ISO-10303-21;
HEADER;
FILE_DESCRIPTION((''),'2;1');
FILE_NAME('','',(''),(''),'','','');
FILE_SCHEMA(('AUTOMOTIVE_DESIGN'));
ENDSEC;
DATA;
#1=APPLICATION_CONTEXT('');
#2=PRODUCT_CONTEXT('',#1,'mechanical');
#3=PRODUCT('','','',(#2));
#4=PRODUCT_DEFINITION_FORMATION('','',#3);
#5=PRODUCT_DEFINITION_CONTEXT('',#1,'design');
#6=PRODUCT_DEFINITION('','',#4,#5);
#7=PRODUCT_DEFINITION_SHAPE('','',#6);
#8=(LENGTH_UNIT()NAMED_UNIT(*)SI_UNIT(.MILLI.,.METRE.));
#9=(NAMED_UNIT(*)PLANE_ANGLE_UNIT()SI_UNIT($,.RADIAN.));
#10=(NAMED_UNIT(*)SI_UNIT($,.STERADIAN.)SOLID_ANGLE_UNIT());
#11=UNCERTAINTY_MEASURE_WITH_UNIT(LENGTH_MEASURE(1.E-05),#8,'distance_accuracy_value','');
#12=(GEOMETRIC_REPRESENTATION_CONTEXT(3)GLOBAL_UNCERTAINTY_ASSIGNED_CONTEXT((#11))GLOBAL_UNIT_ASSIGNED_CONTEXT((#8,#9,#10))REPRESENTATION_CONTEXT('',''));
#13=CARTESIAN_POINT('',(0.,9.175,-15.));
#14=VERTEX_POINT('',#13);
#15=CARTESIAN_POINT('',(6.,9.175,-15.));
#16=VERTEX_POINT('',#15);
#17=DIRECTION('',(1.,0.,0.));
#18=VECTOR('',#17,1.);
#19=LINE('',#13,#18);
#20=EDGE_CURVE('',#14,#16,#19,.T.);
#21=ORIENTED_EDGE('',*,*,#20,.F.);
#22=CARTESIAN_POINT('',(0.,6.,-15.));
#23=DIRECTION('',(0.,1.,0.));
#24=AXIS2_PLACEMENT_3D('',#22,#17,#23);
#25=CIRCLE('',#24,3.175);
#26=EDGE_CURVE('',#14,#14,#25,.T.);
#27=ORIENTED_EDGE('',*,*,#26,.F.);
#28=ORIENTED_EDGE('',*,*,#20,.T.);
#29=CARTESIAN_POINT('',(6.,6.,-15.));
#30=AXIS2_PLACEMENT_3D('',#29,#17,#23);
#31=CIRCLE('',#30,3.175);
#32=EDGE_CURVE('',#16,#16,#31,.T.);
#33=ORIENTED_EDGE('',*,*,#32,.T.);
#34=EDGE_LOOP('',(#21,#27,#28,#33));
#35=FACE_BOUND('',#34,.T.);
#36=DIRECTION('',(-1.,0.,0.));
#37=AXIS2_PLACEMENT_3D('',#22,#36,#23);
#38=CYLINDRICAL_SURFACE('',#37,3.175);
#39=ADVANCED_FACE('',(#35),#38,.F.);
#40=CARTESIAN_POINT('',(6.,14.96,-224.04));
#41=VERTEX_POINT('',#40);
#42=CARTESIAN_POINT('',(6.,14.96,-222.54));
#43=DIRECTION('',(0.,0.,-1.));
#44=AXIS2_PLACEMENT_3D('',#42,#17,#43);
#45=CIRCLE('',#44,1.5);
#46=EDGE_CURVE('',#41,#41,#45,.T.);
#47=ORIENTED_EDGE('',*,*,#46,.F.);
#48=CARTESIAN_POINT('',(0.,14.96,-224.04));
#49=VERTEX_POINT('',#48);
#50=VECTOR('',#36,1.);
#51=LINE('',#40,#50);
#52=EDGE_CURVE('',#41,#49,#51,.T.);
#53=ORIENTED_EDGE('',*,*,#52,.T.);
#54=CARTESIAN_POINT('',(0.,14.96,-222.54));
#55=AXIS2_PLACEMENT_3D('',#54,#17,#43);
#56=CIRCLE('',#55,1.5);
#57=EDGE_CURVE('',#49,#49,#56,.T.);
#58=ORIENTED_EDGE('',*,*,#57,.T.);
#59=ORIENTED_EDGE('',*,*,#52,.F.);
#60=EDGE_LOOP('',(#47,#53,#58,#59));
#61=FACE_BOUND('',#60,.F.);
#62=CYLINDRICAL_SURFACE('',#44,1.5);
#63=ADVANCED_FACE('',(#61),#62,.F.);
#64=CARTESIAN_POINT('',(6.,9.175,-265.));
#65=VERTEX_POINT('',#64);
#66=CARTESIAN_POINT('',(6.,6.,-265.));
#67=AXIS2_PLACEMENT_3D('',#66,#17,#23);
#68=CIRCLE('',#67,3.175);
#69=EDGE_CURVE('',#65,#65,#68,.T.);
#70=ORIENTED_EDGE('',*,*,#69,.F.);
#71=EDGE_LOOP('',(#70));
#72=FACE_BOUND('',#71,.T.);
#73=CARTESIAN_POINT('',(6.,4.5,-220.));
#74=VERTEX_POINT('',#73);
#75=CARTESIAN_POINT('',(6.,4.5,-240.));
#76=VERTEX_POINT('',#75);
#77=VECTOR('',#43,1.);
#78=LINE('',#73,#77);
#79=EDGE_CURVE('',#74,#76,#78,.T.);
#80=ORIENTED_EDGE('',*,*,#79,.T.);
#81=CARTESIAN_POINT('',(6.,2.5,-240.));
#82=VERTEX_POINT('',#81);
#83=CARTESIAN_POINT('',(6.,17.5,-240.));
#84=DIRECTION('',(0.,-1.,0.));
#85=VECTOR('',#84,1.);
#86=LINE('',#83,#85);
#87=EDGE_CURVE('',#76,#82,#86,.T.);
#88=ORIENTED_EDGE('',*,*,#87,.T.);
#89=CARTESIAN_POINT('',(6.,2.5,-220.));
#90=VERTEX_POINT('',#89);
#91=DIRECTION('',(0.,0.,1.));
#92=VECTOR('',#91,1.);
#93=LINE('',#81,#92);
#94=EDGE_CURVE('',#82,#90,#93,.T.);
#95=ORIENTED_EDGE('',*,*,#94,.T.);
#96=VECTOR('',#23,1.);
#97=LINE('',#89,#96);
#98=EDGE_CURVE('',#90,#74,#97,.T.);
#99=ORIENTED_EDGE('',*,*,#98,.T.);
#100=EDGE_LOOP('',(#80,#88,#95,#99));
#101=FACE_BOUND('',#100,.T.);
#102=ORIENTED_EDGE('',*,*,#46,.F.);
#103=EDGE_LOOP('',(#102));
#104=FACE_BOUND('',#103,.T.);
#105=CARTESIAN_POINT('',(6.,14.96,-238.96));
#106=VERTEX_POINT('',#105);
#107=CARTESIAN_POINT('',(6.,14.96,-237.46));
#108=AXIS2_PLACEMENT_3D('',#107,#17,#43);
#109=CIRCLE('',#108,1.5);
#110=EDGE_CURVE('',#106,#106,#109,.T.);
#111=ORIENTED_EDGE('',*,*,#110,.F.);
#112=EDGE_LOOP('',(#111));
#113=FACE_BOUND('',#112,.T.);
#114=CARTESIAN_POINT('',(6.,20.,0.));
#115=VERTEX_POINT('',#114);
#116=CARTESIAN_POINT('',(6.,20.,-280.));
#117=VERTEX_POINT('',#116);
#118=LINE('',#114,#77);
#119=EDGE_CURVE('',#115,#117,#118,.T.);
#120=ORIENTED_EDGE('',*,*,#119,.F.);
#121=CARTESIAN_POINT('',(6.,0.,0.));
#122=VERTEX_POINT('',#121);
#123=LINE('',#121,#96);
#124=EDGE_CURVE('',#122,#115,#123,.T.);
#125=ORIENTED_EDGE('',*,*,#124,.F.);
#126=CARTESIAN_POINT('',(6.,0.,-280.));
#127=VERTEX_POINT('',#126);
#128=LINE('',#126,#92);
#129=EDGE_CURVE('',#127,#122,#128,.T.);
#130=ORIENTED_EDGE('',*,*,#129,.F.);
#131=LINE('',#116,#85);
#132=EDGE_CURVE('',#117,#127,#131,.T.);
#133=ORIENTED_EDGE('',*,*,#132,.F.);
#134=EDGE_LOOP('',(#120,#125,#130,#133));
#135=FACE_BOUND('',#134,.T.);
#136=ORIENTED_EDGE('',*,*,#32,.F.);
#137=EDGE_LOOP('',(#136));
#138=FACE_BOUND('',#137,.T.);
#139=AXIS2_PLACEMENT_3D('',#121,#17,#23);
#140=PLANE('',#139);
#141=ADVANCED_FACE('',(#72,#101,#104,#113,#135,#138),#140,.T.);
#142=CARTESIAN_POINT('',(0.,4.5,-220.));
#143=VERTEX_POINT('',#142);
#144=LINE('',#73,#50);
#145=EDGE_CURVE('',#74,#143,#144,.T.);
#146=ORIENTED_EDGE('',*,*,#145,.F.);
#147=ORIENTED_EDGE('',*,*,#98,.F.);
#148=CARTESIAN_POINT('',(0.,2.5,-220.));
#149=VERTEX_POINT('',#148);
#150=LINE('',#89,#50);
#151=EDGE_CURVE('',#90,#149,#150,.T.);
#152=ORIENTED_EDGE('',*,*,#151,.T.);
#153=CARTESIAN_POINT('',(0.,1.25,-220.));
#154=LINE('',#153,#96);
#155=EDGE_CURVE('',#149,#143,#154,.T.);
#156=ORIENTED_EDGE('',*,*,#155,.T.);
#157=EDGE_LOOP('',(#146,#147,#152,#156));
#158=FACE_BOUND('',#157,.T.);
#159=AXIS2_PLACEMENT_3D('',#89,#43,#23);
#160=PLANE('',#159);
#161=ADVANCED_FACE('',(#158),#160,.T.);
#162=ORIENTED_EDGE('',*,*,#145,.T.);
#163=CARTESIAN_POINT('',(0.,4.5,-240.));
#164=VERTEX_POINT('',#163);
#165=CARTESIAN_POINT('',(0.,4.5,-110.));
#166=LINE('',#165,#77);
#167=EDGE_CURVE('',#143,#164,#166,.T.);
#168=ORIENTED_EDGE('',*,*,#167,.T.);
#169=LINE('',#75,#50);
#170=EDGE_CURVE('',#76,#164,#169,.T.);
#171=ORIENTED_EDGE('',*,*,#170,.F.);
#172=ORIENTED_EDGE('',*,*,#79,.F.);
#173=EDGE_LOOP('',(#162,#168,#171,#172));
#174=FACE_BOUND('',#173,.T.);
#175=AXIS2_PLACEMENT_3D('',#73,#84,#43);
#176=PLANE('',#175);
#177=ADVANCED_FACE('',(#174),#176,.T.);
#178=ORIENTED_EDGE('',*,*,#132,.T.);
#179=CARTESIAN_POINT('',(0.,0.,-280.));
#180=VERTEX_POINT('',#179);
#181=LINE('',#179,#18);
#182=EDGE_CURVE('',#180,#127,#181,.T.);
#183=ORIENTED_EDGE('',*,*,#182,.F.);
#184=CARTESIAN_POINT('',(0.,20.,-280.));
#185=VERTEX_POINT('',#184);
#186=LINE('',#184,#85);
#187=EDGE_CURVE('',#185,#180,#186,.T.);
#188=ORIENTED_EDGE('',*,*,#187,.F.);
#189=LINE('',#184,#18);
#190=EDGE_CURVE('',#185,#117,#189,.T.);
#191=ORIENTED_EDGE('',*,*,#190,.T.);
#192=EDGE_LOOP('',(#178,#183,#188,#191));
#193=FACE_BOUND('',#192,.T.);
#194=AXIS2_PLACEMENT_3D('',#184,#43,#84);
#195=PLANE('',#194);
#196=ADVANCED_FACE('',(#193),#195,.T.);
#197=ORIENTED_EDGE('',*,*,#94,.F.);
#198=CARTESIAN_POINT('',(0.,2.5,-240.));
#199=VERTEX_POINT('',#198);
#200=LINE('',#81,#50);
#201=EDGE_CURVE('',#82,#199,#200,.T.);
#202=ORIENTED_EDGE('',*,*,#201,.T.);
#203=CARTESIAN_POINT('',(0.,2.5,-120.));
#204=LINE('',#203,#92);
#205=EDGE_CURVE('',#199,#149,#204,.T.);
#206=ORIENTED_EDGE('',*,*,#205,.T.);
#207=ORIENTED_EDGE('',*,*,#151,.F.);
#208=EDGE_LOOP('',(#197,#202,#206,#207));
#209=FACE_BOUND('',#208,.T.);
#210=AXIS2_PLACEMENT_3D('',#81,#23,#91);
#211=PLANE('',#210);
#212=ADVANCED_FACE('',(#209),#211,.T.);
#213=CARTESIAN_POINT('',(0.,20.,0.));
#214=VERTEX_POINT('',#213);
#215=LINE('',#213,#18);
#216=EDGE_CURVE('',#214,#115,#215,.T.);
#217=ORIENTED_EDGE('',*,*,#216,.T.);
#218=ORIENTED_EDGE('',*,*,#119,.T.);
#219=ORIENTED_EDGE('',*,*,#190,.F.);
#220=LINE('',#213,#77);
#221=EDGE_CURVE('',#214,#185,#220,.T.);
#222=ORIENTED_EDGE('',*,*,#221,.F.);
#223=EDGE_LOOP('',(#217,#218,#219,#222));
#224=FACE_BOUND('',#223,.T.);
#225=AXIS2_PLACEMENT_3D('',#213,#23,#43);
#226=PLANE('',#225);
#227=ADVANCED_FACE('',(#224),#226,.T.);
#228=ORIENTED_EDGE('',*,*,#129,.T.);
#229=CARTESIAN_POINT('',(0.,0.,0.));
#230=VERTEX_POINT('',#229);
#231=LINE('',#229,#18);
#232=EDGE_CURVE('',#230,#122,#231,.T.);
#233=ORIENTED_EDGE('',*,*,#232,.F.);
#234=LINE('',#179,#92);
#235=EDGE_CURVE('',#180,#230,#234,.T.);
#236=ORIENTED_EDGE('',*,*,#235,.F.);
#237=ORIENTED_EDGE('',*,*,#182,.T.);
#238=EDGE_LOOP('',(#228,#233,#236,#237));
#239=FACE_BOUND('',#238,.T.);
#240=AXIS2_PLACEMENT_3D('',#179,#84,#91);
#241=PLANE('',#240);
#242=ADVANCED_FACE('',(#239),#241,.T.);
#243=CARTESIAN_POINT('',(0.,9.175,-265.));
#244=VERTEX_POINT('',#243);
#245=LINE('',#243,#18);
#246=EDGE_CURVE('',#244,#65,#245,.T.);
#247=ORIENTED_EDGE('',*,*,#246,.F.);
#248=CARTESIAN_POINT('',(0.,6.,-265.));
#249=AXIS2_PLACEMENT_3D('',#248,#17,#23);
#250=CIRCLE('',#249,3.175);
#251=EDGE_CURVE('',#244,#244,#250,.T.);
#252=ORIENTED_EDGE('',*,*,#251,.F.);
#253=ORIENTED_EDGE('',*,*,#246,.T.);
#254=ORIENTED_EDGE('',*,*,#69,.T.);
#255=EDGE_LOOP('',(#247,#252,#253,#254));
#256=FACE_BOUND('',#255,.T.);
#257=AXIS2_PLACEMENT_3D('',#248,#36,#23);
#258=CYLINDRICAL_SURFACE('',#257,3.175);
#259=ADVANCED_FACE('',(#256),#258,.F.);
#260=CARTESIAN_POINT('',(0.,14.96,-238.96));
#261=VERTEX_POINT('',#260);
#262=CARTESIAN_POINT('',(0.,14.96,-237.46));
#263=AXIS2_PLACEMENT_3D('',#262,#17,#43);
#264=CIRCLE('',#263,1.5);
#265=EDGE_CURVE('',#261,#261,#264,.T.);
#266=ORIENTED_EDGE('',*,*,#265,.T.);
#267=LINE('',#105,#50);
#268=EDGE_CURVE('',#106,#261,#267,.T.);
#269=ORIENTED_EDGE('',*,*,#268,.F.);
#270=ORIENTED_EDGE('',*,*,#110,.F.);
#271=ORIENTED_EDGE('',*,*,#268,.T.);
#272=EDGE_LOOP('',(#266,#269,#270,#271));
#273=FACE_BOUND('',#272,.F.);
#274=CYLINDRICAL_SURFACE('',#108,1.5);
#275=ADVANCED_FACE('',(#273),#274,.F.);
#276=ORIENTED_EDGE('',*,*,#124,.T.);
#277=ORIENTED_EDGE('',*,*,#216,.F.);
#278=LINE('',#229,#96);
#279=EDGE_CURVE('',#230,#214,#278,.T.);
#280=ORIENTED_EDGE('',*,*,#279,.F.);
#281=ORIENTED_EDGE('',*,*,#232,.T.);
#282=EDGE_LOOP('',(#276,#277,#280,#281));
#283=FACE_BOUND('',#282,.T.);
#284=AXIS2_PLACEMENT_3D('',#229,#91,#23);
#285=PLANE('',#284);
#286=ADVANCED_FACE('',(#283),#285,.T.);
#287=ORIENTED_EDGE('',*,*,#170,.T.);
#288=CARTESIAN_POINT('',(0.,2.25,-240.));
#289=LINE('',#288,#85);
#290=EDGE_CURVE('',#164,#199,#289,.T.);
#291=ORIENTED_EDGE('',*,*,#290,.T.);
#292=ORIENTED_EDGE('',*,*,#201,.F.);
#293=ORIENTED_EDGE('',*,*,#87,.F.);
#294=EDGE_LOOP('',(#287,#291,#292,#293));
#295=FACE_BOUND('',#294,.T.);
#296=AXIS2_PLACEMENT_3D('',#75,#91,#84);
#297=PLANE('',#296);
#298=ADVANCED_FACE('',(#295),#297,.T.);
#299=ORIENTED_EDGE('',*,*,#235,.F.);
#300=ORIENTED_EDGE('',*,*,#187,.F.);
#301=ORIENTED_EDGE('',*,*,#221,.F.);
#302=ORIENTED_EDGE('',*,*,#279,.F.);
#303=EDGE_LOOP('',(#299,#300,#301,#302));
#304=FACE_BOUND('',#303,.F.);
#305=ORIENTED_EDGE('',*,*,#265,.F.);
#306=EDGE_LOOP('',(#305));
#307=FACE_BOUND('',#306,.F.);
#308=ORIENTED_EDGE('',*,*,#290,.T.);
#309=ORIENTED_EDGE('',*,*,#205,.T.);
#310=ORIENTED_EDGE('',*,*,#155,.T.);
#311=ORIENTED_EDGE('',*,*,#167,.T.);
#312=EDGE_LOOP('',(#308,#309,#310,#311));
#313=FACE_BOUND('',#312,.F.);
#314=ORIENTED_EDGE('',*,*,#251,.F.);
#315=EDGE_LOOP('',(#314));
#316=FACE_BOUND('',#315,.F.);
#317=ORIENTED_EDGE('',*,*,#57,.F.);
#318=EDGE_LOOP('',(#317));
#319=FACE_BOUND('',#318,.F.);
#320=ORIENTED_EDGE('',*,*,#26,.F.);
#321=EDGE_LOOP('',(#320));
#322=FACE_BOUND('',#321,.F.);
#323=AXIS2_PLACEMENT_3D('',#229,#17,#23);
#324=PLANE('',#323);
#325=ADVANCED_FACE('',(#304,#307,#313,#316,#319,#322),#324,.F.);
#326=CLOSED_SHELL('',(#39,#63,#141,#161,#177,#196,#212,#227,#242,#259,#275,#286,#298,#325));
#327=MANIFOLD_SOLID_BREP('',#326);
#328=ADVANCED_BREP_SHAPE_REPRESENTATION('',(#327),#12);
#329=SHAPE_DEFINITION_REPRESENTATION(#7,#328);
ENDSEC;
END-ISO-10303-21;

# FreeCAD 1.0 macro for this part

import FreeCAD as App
import Part
import Sketcher

V = App.Vector

doc = App.newDocument("Part")
body = doc.addObject("PartDesign::Body", "Body")

# Sketch on YZ plane
sketch1 = body.newObject("Sketcher::SketchObject", "Sketch")
sketch1.AttachmentSupport = (doc.getObject("YZ_Plane"), [""])
sketch1.MapMode = "FlatFace"
sketch1.addGeometry([
    Part.LineSegment(V(20, 0, 0), V(0, 0, 0)),  # 0
    Part.LineSegment(V(0, 0, 0), V(0, -280, 0)),  # 1
    Part.LineSegment(V(0, -280, 0), V(20, -280, 0)),  # 2
    Part.LineSegment(V(20, -280, 0), V(20, 0, 0)),  # 3
    Part.Circle(V(6, -265, 0), V(0, 0, 1), 3.2),  # 4
    Part.Circle(V(6, -15, 0), V(0, 0, 1), 3.2),  # 5
], False)
sketch1.addConstraint([
    Sketcher.Constraint("Coincident", 0, 2, 1, 1),
    Sketcher.Constraint("Coincident", 1, 2, 2, 1),
    Sketcher.Constraint("Coincident", 2, 2, 3, 1),
    Sketcher.Constraint("Coincident", 3, 2, 0, 1),
    Sketcher.Constraint("Horizontal", 0),
    Sketcher.Constraint("Vertical", 1),
    Sketcher.Constraint("Horizontal", 2),
    Sketcher.Constraint("Vertical", 3),
    Sketcher.Constraint("Coincident", 0, 2, -1, 1),
    Sketcher.Constraint("Equal", 4, 5),
    Sketcher.Constraint("Vertical", 4, 3, 5, 3),
    Sketcher.Constraint("Diameter", 4, 6.35),
    Sketcher.Constraint("DistanceX", 0, 2, 0, 1, 20.0),
    Sketcher.Constraint("DistanceY", 1, 2, 1, 1, 280.0),
    Sketcher.Constraint("DistanceX", -1, 1, 4, 3, 6.0),
    Sketcher.Constraint("DistanceY", 5, 3, -1, 1, 15.0),
    Sketcher.Constraint("DistanceY", 4, 3, 5, 3, 250.0),
])
pad1 = body.newObject("PartDesign::Pad", "Pad")
pad1.Profile = sketch1
pad1.Length = 6

# Sketch on YZ plane
sketch2 = body.newObject("Sketcher::SketchObject", "Sketch001")
sketch2.AttachmentSupport = (doc.getObject("YZ_Plane"), [""])
sketch2.MapMode = "FlatFace"
sketch2.AttachmentOffset = App.Placement(V(0, 0, 6), App.Rotation())
sketch2.addGeometry([
    Part.LineSegment(V(4.5, -240, 0), V(4.5, -220, 0)),  # 0
    Part.LineSegment(V(4.5, -220, 0), V(2.5, -220, 0)),  # 1
    Part.LineSegment(V(2.5, -220, 0), V(2.5, -240, 0)),  # 2
    Part.LineSegment(V(2.5, -240, 0), V(4.5, -240, 0)),  # 3
    Part.Circle(V(15, -222.5, 0), V(0, 0, 1), 1.5),  # 4
    Part.Circle(V(15, -237.5, 0), V(0, 0, 1), 1.5),  # 5
], False)
sketch2.addConstraint([
    Sketcher.Constraint("Coincident", 0, 2, 1, 1),
    Sketcher.Constraint("Coincident", 1, 2, 2, 1),
    Sketcher.Constraint("Coincident", 2, 2, 3, 1),
    Sketcher.Constraint("Coincident", 3, 2, 0, 1),
    Sketcher.Constraint("Vertical", 0),
    Sketcher.Constraint("Horizontal", 1),
    Sketcher.Constraint("Vertical", 2),
    Sketcher.Constraint("Horizontal", 3),
    Sketcher.Constraint("Equal", 4, 5),
    Sketcher.Constraint("Vertical", 4, 3, 5, 3),
    Sketcher.Constraint("Diameter", 4, 3.0),
    Sketcher.Constraint("DistanceX", 1, 2, 1, 1, 2.0),
    Sketcher.Constraint("DistanceY", 0, 1, 0, 2, 20.0),
    Sketcher.Constraint("DistanceY", 4, 3, 0, 2, 2.54),
    Sketcher.Constraint("DistanceY", 2, 2, 5, 3, 2.54),
    Sketcher.Constraint("DistanceY", 0, 2, -1, 1, 220.0),
    Sketcher.Constraint("DistanceX", -1, 1, 0, 2, 4.5),
    Sketcher.Constraint("DistanceX", -1, 1, 4, 3, 14.96),
])
pocket1 = body.newObject("PartDesign::Pocket", "Pocket")
pocket1.Profile = sketch2
pocket1.Type = "ThroughAll"

doc.recompute()
